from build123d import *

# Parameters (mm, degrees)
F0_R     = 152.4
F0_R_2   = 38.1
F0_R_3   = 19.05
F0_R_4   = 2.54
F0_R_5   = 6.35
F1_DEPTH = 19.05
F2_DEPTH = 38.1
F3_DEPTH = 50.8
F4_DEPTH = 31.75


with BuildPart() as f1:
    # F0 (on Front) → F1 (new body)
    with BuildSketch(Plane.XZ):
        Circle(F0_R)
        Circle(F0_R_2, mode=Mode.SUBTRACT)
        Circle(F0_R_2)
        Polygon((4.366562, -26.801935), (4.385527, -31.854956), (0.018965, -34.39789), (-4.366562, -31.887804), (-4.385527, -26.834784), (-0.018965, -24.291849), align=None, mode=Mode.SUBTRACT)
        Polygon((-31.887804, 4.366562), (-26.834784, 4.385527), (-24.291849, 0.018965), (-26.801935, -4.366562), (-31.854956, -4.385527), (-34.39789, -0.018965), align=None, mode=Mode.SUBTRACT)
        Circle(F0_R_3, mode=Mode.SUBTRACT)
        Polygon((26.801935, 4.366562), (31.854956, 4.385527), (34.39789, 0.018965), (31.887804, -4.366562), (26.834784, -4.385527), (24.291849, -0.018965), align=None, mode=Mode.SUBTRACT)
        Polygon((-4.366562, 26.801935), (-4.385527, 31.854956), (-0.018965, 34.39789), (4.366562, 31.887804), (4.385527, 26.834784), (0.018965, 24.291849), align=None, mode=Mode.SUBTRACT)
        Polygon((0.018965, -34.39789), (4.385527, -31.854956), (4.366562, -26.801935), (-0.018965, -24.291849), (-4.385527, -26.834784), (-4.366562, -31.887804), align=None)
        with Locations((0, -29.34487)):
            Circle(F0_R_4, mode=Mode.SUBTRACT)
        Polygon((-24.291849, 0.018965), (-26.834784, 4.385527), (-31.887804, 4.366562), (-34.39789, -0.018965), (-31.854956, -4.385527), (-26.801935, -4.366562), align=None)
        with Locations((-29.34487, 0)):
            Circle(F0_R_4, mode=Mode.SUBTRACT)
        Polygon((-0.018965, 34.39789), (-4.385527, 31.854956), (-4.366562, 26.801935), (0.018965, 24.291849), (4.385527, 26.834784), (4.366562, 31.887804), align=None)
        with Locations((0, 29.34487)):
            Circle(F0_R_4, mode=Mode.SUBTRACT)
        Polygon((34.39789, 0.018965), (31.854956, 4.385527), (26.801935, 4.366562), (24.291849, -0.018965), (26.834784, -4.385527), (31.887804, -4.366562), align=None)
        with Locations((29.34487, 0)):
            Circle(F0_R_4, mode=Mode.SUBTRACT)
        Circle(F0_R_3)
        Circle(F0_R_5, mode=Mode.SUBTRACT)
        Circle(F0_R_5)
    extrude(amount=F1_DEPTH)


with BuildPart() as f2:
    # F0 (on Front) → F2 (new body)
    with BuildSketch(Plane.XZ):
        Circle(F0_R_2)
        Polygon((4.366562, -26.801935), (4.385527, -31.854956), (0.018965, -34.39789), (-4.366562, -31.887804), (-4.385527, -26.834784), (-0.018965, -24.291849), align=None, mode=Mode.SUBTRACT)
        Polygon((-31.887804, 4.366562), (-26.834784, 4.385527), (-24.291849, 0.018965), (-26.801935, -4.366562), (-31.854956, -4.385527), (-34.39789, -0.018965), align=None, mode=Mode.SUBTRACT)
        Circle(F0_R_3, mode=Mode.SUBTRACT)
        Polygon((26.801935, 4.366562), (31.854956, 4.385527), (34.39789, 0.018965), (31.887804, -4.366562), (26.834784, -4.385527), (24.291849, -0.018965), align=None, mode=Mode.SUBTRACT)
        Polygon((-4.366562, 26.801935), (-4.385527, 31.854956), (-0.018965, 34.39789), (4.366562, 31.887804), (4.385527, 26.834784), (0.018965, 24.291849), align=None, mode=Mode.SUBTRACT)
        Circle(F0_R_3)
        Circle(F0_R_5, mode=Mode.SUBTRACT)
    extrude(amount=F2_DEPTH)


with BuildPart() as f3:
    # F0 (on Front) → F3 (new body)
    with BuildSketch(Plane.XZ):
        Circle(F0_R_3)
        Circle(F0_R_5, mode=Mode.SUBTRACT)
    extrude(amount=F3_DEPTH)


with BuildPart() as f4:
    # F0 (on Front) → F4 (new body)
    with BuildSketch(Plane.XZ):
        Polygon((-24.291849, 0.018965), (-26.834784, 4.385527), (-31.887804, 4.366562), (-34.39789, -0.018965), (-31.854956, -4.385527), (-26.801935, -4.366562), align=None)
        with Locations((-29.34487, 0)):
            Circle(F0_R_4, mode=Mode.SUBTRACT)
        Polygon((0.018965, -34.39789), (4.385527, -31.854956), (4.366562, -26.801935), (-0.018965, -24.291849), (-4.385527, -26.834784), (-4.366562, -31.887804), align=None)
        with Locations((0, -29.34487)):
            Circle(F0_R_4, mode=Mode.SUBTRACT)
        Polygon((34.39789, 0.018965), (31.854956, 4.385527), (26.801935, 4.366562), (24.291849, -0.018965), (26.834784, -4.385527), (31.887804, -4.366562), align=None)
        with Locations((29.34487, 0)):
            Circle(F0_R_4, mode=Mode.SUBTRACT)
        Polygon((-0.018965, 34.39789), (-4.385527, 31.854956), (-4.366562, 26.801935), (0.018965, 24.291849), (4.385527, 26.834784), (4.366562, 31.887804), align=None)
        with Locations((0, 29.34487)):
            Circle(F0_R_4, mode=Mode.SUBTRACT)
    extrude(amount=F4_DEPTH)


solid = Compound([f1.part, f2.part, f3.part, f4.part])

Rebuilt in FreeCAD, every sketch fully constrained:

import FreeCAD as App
import Part
import Sketcher

V = App.Vector
Q = App.Units.Quantity


def add_polygon(sketch, points):
    """Adds a closed chain of lines whose ends are joined by coincident constraints."""
    first, n = sketch.GeometryCount, len(points)
    for a, b in zip(points, points[1:] + points[:1]):
        sketch.addGeometry(Part.LineSegment(App.Vector(*a, 0), App.Vector(*b, 0)), False)
    for i in range(n):
        sketch.addConstraint(Sketcher.Constraint("Coincident", first + i, 2, first + (i + 1) % n, 1))

doc = App.newDocument("Part")
body = doc.addObject("PartDesign::Body", "Body")

# Sketch on XZ plane
sketch1 = body.newObject("Sketcher::SketchObject", "Sketch")
sketch1.AttachmentSupport = (doc.getObject("XZ_Plane"), [""])
sketch1.MapMode = "FlatFace"
sketch1.addGeometry([
    Part.Circle(V(0, 0, 0), V(0, 0, 1), 152.4),  # 0
    Part.Circle(V(0, -29.3, 0), V(0, 0, 1), 2.5),  # 1
    Part.Circle(V(-29.3, 0, 0), V(0, 0, 1), 2.5),  # 2
    Part.Circle(V(29.3, 0, 0), V(0, 0, 1), 2.5),  # 3
    Part.Circle(V(0, 29.3, 0), V(0, 0, 1), 2.5),  # 4
], False)
sketch1.addConstraint([
    Sketcher.Constraint("Coincident", 0, 3, -1, 1),
    Sketcher.Constraint("Equal", 1, 2),
    Sketcher.Constraint("Equal", 2, 3),
    Sketcher.Constraint("Equal", 3, 4),
    Sketcher.Constraint("Symmetric", 2, 3, 3, 3, -1, 1),
    Sketcher.Constraint("Symmetric", 1, 3, 4, 3, -1, 1),
    Sketcher.Constraint("PointOnObject", 1, 3, -2),
    Sketcher.Constraint("PointOnObject", 2, 3, -1),
    Sketcher.Constraint("Diameter", 0, Q("12 in")),
    Sketcher.Constraint("Diameter", 1, Q("0.2 in")),
    Sketcher.Constraint("DistanceY", 1, 3, -1, 1, 29.34487),
    Sketcher.Constraint("DistanceX", 2, 3, -1, 1, 29.34487),
])
pad1 = body.newObject("PartDesign::Pad", "Pad")
pad1.Profile = sketch1
pad1.Length = Q("0.75 in")
body2 = doc.addObject("PartDesign::Body", "Body001")

# Sketch on XZ plane
sketch2 = body2.newObject("Sketcher::SketchObject", "Sketch001")
sketch2.AttachmentSupport = (doc.getObject("XZ_Plane001"), [""])
sketch2.MapMode = "FlatFace"
sketch2.addGeometry(Part.Circle(V(0, 0, 0), V(0, 0, 1), 38), False)  # 0
add_polygon(sketch2, [(0, -24), (4, -27), (4, -32), (0, -34), (-4, -32), (-4, -27)])  # lines 1-6
add_polygon(sketch2, [(-34, 0), (-32, 4), (-27, 4), (-24, 0), (-27, -4), (-32, -4)])  # lines 7-12
sketch2.addGeometry(Part.Circle(V(0, 0, 0), V(0, 0, 1), 6), False)  # 13
add_polygon(sketch2, [(24, 0), (27, 4), (32, 4), (34, 0), (32, -4), (27, -4)])  # lines 14-19
add_polygon(sketch2, [(0, 24), (-4, 27), (-4, 32), (0, 34), (4, 32), (4, 27)])  # lines 20-25
sketch2.addConstraint([
    Sketcher.Constraint("Coincident", 0, 3, -1, 1),
    Sketcher.Constraint("Coincident", 13, 3, -1, 1),
    Sketcher.Constraint("Symmetric", 10, 2, 14, 2, -1, 1),
    Sketcher.Constraint("Symmetric", 11, 2, 15, 2, -1, 1),
    Sketcher.Constraint("Symmetric", 12, 2, 16, 2, -1, 1),
    Sketcher.Constraint("Symmetric", 7, 2, 17, 2, -1, 1),
    Sketcher.Constraint("Symmetric", 8, 2, 18, 2, -1, 1),
    Sketcher.Constraint("Symmetric", 9, 2, 19, 2, -1, 1),
    Sketcher.Constraint("Symmetric", 1, 2, 20, 2, -1, 1),
    Sketcher.Constraint("Symmetric", 2, 2, 21, 2, -1, 1),
    Sketcher.Constraint("Symmetric", 3, 2, 22, 2, -1, 1),
    Sketcher.Constraint("Symmetric", 4, 2, 23, 2, -1, 1),
    Sketcher.Constraint("Symmetric", 5, 2, 24, 2, -1, 1),
    Sketcher.Constraint("Symmetric", 6, 2, 25, 2, -1, 1),
    Sketcher.Constraint("Parallel", 1, 4),
    Sketcher.Constraint("Parallel", 2, 5),
    Sketcher.Constraint("Parallel", 3, 6),
    Sketcher.Constraint("Perpendicular", 4, 7),
    Sketcher.Constraint("Perpendicular", 5, 8),
    Sketcher.Constraint("Perpendicular", 6, 9),
    Sketcher.Constraint("Parallel", 7, 10),
    Sketcher.Constraint("Parallel", 8, 11),
    Sketcher.Constraint("Parallel", 9, 12),
    Sketcher.Constraint("Horizontal", 7, 2, 14, 2),
    Sketcher.Constraint("Horizontal", 9, 2, 16, 2),
    Sketcher.Constraint("Vertical", 4, 2, 20, 2),
    Sketcher.Constraint("Vertical", 6, 2, 22, 2),
    Sketcher.Constraint("Equal", 1, 2),
    Sketcher.Constraint("Equal", 2, 3),
    Sketcher.Constraint("Equal", 6, 7),
    Sketcher.Constraint("Equal", 7, 8),
    Sketcher.Constraint("Equal", 8, 9),
    Sketcher.Constraint("Diameter", 0, Q("3 in")),
    Sketcher.Constraint("Diameter", 13, Q("0.5 in")),
    Sketcher.Constraint("DistanceX", 6, 2, 14, 2, 26.8209),
    Sketcher.Constraint("DistanceY", 1, 2, 16, 2, 26.8209),
    Sketcher.Constraint("DistanceY", 3, 2, -1, 1, 34.39789),
    Sketcher.Constraint("DistanceY", 6, 2, -1, 1, 24.291849),
    Sketcher.Constraint("DistanceY", 2, 2, 1, 2, 5.053021),
    Sketcher.Constraint("DistanceY", 4, 2, 1, 2, 5.085869),
])
pad2 = body2.newObject("PartDesign::Pad", "Pad001")
pad2.Profile = sketch2
pad2.Length = Q("1.5 in")
body3 = doc.addObject("PartDesign::Body", "Body002")

# Sketch on XZ plane
sketch3 = body3.newObject("Sketcher::SketchObject", "Sketch002")
sketch3.AttachmentSupport = (doc.getObject("XZ_Plane002"), [""])
sketch3.MapMode = "FlatFace"
sketch3.addGeometry([
    Part.Circle(V(0, 0, 0), V(0, 0, 1), 19),
    Part.Circle(V(0, 0, 0), V(0, 0, 1), 6),
], False)
sketch3.addConstraint([
    Sketcher.Constraint("Coincident", 0, 3, -1, 1),
    Sketcher.Constraint("Coincident", 1, 3, -1, 1),
    Sketcher.Constraint("Diameter", 0, Q("1.5 in")),
    Sketcher.Constraint("Diameter", 1, Q("0.5 in")),
])
pad3 = body3.newObject("PartDesign::Pad", "Pad002")
pad3.Profile = sketch3
pad3.Length = Q("2 in")
body4 = doc.addObject("PartDesign::Body", "Body003")
body4.AllowCompound = True

# Sketch on XZ plane
sketch4 = body4.newObject("Sketcher::SketchObject", "Sketch003")
sketch4.AttachmentSupport = (doc.getObject("XZ_Plane003"), [""])
sketch4.MapMode = "FlatFace"
add_polygon(sketch4, [(-24.3, 0), (-26.8, 4.4), (-31.9, 4.4), (-34.4, 0), (-31.9, -4.4), (-26.8, -4.4)])  # lines 0-5
sketch4.addGeometry(Part.Circle(V(-29.3, 0, 0), V(0, 0, 1), 2.5), False)  # 6
add_polygon(sketch4, [(0, -34.4), (4.4, -31.9), (4.4, -26.8), (0, -24.3), (-4.4, -26.8), (-4.4, -31.9)])  # lines 7-12
sketch4.addGeometry(Part.Circle(V(0, -29.3, 0), V(0, 0, 1), 2.5), False)  # 13
add_polygon(sketch4, [(34.4, 0), (31.9, 4.4), (26.8, 4.4), (24.3, 0), (26.8, -4.4), (31.9, -4.4)])  # lines 14-19
sketch4.addGeometry(Part.Circle(V(29.3, 0, 0), V(0, 0, 1), 2.5), False)  # 20
add_polygon(sketch4, [(0, 34.4), (-4.4, 31.9), (-4.4, 26.8), (0, 24.3), (4.4, 26.8), (4.4, 31.9)])  # lines 21-26
sketch4.addGeometry(Part.Circle(V(0, 29.3, 0), V(0, 0, 1), 2.5), False)  # 27
sketch4.addConstraint([
    Sketcher.Constraint("Equal", 6, 13),
    Sketcher.Constraint("Equal", 13, 20),
    Sketcher.Constraint("Equal", 20, 27),
    Sketcher.Constraint("Symmetric", 6, 3, 20, 3, -1, 1),
    Sketcher.Constraint("Symmetric", 13, 3, 27, 3, -1, 1),
    Sketcher.Constraint("Symmetric", 3, 2, 14, 2, -1, 1),
    Sketcher.Constraint("Symmetric", 4, 2, 15, 2, -1, 1),
    Sketcher.Constraint("Symmetric", 5, 2, 16, 2, -1, 1),
    Sketcher.Constraint("Symmetric", 0, 2, 17, 2, -1, 1),
    Sketcher.Constraint("Symmetric", 1, 2, 18, 2, -1, 1),
    Sketcher.Constraint("Symmetric", 2, 2, 19, 2, -1, 1),
    Sketcher.Constraint("Symmetric", 7, 2, 21, 2, -1, 1),
    Sketcher.Constraint("Symmetric", 8, 2, 22, 2, -1, 1),
    Sketcher.Constraint("Symmetric", 9, 2, 23, 2, -1, 1),
    Sketcher.Constraint("Symmetric", 10, 2, 24, 2, -1, 1),
    Sketcher.Constraint("Symmetric", 11, 2, 25, 2, -1, 1),
    Sketcher.Constraint("Symmetric", 12, 2, 26, 2, -1, 1),
    Sketcher.Constraint("PointOnObject", 6, 3, -1),
    Sketcher.Constraint("PointOnObject", 13, 3, -2),
    Sketcher.Constraint("Parallel", 0, 3),
    Sketcher.Constraint("Parallel", 1, 4),
    Sketcher.Constraint("Parallel", 2, 5),
    Sketcher.Constraint("Perpendicular", 3, 7),
    Sketcher.Constraint("Perpendicular", 4, 8),
    Sketcher.Constraint("Perpendicular", 5, 9),
    Sketcher.Constraint("Parallel", 7, 10),
    Sketcher.Constraint("Parallel", 8, 11),
    Sketcher.Constraint("Parallel", 9, 12),
    Sketcher.Constraint("Horizontal", 0, 2, 14, 2),
    Sketcher.Constraint("Horizontal", 2, 2, 16, 2),
    Sketcher.Constraint("Vertical", 10, 2, 21, 2),
    Sketcher.Constraint("Vertical", 12, 2, 23, 2),
    Sketcher.Constraint("Equal", 0, 1),
    Sketcher.Constraint("Equal", 1, 2),
    Sketcher.Constraint("Equal", 5, 7),
    Sketcher.Constraint("Equal", 7, 8),
    Sketcher.Constraint("Equal", 8, 9),
    Sketcher.Constraint("Diameter", 6, Q("0.2 in")),
    Sketcher.Constraint("DistanceY", 8, 2, 5, 2, 26.8209),
    Sketcher.Constraint("DistanceX", 9, 2, 15, 2, 26.8209),
    Sketcher.Constraint("DistanceX", 6, 3, -1, 1, 29.34487),
    Sketcher.Constraint("DistanceY", 13, 3, -1, 1, 29.34487),
    Sketcher.Constraint("DistanceX", 2, 2, -1, 1, 34.39789),
    Sketcher.Constraint("DistanceX", 5, 2, -1, 1, 24.291849),
    Sketcher.Constraint("DistanceX", 1, 2, 0, 2, 5.05302),
    Sketcher.Constraint("DistanceY", 2, 2, 0, 2, 4.404492),
])
pad4 = body4.newObject("PartDesign::Pad", "Pad003")
pad4.Profile = sketch4
pad4.Length = Q("1.25 in")

doc.recompute()
